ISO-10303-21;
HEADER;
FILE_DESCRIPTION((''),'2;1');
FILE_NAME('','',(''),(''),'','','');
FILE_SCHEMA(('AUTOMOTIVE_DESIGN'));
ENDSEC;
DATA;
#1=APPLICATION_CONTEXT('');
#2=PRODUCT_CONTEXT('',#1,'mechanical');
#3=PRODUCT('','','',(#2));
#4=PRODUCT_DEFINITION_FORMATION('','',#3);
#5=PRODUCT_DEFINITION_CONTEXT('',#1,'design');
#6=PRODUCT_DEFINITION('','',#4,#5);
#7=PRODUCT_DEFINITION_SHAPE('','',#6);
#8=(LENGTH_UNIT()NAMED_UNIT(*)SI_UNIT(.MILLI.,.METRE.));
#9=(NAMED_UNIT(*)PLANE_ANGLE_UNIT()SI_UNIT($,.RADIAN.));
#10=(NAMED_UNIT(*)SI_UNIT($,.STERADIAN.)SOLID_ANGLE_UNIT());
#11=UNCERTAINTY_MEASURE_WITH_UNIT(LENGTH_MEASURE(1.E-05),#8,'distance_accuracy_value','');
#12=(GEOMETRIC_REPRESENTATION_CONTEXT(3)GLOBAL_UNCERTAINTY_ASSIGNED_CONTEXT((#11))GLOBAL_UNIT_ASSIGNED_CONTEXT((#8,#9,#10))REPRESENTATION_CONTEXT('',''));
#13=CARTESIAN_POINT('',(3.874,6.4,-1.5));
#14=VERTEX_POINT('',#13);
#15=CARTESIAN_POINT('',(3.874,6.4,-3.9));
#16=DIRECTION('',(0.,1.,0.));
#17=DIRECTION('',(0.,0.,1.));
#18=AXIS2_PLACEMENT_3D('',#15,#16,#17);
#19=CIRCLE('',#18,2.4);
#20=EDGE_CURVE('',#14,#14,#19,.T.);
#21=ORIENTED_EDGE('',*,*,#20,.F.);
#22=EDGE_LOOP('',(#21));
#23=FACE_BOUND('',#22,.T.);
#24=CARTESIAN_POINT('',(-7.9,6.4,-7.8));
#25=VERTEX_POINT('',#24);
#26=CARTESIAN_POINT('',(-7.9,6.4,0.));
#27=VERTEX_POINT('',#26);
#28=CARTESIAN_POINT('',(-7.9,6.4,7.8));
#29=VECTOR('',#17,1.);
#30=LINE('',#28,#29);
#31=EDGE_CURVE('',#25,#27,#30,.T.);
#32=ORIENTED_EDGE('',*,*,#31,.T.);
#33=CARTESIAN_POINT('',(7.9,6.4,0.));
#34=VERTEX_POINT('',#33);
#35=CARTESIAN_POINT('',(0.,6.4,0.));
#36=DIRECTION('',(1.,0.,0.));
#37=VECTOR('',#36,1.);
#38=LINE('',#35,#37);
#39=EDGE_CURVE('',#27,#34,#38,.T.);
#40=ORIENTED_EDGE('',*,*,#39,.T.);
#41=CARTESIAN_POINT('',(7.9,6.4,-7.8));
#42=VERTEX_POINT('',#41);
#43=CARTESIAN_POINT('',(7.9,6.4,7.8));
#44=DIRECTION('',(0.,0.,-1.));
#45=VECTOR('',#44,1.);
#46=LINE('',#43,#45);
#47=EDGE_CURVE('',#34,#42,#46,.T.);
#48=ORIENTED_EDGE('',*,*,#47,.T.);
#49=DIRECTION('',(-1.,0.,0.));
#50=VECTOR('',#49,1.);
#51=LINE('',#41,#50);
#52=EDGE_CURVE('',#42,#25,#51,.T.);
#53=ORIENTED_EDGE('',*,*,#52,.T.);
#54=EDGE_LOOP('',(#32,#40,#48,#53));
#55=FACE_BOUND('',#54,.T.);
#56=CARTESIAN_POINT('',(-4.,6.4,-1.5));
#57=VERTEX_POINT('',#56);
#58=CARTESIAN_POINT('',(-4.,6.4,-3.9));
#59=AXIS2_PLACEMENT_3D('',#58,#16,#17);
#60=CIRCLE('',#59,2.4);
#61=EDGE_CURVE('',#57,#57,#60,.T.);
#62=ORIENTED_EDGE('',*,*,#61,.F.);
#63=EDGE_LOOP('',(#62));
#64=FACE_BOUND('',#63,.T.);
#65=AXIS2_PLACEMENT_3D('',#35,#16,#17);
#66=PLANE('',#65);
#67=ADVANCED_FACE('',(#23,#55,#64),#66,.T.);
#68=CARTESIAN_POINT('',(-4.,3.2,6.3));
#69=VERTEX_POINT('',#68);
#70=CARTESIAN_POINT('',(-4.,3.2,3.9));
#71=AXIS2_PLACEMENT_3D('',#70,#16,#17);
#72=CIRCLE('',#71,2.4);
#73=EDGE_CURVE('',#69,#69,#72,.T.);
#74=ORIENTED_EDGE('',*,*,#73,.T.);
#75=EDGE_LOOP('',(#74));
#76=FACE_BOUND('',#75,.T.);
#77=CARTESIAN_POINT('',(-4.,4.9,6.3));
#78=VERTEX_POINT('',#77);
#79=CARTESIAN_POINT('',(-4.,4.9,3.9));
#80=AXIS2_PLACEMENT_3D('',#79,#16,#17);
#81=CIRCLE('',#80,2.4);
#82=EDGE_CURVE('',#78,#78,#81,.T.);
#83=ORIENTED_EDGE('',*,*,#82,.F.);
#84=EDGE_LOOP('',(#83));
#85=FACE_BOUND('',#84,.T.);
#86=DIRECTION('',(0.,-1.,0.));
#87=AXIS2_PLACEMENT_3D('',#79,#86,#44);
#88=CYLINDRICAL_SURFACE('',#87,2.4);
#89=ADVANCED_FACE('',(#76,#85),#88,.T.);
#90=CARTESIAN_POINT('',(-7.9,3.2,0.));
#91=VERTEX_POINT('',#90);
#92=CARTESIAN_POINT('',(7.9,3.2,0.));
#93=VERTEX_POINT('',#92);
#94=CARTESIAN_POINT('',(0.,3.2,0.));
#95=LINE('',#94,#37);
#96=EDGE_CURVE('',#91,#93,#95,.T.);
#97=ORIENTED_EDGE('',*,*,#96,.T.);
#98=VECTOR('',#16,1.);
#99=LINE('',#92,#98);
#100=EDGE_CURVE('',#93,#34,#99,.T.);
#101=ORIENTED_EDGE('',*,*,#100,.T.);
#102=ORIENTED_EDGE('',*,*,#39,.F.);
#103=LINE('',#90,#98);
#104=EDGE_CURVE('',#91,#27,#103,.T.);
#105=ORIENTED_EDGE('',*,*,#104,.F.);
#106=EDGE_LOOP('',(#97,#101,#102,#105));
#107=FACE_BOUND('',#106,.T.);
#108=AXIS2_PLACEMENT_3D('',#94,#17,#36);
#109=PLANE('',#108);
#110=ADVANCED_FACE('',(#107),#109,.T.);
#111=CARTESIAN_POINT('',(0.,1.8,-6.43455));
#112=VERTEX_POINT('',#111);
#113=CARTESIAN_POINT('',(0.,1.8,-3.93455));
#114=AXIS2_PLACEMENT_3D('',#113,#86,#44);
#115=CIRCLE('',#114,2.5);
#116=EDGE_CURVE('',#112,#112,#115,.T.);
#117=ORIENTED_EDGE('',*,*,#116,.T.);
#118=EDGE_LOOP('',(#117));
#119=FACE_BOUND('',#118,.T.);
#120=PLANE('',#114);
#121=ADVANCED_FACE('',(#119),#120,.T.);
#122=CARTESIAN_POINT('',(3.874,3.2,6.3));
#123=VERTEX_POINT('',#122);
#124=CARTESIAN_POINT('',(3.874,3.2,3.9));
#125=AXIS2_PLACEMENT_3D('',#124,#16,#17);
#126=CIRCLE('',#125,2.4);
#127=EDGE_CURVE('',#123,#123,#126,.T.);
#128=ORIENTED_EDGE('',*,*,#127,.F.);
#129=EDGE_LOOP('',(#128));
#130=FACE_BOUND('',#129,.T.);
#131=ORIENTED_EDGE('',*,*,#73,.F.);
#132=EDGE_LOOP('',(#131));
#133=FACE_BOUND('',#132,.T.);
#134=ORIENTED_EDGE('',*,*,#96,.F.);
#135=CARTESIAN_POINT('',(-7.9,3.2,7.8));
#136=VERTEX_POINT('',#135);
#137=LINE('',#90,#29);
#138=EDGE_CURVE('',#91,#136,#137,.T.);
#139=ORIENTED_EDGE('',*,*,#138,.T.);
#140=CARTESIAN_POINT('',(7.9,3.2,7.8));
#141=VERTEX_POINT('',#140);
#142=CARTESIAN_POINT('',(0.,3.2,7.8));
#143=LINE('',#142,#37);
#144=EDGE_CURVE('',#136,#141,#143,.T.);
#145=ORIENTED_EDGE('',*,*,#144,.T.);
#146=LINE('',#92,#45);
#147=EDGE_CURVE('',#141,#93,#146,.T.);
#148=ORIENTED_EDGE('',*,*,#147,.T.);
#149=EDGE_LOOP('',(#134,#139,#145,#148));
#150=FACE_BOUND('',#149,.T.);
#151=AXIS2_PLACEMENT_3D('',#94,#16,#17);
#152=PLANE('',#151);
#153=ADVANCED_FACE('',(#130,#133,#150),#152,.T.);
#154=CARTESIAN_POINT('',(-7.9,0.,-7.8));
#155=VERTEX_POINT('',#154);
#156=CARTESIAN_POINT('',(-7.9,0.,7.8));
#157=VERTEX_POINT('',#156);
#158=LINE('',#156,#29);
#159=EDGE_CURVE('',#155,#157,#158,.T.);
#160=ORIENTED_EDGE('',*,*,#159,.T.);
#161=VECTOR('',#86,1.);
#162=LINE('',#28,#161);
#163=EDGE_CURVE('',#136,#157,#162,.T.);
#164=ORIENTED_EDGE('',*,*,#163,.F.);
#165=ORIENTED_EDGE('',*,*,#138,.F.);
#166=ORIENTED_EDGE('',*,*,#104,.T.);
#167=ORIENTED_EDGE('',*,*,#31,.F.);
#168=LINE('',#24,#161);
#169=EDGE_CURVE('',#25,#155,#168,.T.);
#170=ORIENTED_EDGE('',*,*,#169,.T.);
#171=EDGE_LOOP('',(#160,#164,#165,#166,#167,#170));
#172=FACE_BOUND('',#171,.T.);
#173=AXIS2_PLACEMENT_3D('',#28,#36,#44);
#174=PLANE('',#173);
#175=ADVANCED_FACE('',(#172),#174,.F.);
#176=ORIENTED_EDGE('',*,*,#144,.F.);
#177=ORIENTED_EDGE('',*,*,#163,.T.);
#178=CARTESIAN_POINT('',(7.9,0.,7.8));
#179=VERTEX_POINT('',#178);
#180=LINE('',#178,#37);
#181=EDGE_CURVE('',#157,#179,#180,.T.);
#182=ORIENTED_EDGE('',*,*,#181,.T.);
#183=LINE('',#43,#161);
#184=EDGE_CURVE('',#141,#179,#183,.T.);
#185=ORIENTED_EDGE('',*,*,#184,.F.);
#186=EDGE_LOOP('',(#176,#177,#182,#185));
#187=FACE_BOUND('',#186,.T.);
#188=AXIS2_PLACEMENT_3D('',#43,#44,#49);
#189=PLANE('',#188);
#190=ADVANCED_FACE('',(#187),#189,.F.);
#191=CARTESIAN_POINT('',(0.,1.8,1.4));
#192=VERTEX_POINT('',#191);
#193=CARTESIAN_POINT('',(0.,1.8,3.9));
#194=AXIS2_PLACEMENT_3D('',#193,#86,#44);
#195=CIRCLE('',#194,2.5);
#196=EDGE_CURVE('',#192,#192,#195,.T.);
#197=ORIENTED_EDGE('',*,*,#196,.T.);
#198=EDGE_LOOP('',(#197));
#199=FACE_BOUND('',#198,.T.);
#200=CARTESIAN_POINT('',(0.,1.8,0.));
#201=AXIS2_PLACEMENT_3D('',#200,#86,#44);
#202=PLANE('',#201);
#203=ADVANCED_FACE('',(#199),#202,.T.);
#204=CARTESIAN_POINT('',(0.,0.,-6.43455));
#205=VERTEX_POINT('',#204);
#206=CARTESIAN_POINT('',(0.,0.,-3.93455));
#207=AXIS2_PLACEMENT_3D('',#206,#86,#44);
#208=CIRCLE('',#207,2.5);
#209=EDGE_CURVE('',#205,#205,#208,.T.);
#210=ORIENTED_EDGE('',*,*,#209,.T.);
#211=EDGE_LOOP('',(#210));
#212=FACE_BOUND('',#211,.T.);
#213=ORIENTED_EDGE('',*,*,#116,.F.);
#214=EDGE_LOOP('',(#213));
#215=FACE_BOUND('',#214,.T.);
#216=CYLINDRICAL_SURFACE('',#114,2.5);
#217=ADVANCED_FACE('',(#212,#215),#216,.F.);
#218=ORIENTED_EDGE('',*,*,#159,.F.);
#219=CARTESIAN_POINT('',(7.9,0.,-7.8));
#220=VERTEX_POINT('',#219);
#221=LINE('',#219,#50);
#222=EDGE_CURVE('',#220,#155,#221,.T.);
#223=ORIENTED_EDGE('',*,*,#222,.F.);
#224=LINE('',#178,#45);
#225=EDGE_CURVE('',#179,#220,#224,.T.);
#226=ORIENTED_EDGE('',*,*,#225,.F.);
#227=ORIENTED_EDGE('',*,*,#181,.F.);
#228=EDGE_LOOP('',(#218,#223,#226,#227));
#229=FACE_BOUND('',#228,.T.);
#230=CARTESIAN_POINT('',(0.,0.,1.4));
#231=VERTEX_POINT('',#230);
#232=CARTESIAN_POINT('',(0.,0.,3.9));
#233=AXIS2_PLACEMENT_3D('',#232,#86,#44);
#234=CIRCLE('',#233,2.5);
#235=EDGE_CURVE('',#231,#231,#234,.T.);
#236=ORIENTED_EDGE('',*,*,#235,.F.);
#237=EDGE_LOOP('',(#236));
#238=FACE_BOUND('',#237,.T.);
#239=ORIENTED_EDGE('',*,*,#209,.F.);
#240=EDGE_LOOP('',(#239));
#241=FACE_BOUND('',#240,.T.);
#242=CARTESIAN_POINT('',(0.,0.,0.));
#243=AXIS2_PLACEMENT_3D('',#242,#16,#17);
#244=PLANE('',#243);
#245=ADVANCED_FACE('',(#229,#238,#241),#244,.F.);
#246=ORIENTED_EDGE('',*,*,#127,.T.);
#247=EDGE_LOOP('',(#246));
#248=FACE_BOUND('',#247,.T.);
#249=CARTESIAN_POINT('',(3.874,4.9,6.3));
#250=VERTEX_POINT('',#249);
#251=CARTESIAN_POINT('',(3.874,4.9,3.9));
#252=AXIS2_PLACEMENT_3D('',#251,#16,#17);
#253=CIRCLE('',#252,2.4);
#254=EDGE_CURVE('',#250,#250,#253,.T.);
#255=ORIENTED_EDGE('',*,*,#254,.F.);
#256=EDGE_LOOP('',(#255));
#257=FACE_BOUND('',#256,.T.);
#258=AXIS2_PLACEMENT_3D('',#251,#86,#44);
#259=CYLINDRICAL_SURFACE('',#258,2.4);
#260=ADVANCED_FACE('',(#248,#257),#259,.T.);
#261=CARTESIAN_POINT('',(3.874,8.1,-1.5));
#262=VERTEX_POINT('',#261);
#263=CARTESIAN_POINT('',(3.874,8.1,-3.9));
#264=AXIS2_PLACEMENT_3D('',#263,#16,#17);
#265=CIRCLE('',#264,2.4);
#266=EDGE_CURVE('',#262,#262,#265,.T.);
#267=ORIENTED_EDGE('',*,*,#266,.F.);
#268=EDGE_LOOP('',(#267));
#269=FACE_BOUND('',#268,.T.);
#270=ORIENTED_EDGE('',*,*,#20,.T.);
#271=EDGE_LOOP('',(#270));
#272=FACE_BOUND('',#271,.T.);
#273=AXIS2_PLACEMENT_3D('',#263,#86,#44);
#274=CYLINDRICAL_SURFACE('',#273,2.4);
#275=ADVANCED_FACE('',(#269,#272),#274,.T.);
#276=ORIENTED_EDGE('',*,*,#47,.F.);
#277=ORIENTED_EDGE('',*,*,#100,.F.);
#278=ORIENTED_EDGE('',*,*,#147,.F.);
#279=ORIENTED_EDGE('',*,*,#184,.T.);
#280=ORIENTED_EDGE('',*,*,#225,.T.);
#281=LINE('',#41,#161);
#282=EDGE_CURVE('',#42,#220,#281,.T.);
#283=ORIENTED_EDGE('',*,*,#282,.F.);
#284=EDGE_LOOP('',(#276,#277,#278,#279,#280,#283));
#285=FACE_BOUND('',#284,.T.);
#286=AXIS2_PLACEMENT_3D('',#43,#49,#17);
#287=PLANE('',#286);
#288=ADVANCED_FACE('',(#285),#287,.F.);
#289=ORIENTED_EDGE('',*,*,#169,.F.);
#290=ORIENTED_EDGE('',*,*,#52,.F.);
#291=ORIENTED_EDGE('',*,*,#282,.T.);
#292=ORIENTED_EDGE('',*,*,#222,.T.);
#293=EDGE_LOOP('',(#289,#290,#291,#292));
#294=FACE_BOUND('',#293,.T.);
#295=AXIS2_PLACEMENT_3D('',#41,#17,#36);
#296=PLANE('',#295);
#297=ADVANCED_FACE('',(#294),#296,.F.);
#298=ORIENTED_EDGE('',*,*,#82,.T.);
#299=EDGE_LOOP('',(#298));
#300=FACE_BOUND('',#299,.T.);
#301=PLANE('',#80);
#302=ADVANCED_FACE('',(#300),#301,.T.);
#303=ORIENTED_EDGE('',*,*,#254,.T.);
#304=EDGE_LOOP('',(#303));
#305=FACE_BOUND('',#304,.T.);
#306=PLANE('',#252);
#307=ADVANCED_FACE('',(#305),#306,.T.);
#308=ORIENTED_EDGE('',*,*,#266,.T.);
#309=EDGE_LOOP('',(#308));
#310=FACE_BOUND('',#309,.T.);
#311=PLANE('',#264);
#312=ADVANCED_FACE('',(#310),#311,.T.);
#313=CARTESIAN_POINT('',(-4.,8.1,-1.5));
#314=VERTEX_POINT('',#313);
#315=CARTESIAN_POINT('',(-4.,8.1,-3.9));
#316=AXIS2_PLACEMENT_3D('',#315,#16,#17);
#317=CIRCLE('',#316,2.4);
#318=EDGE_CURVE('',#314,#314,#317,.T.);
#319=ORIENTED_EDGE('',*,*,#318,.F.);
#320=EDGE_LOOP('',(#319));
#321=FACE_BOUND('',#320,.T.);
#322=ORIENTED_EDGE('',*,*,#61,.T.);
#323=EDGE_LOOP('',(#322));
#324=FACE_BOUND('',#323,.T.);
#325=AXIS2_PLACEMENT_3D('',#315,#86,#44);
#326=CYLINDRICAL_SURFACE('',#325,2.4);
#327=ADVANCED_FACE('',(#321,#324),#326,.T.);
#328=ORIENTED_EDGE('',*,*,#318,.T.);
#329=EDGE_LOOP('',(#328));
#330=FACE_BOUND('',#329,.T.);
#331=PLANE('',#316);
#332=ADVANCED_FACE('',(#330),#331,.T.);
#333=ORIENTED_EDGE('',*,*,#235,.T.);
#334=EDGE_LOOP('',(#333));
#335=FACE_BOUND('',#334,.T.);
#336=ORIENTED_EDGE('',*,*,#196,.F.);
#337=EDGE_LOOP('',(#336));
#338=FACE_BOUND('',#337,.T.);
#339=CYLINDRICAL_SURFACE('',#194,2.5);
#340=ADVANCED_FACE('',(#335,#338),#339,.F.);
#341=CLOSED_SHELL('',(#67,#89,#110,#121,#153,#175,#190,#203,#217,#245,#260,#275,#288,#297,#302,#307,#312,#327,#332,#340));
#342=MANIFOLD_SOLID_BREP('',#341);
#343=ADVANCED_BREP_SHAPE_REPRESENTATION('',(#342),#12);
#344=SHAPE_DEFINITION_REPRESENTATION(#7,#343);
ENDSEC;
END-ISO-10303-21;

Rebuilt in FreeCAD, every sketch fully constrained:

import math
import FreeCAD as App
import Part
import Sketcher


def add_polygon(sketch, points):
    """Adds a closed chain of lines whose ends are joined by coincident constraints."""
    first, n = sketch.GeometryCount, len(points)
    for a, b in zip(points, points[1:] + points[:1]):
        sketch.addGeometry(Part.LineSegment(App.Vector(*a, 0), App.Vector(*b, 0)), False)
    for i in range(n):
        sketch.addConstraint(Sketcher.Constraint("Coincident", first + i, 2, first + (i + 1) % n, 1))

doc = App.newDocument("Part")
body = doc.addObject("PartDesign::Body", "Body")

# Sketch on XZ plane
sketch1 = body.newObject("Sketcher::SketchObject", "Sketch")
sketch1.AttachmentSupport = (doc.getObject("XZ_Plane"), [""])
sketch1.MapMode = "FlatFace"
add_polygon(sketch1, [(-7.9, -7.8), (-7.9, 7.8), (7.9, 7.8), (7.9, -7.8)])  # lines 0-3
sketch1.addConstraint(Sketcher.Constraint("Vertical", 0))
sketch1.addConstraint(Sketcher.Constraint("Horizontal", 1))
sketch1.addConstraint(Sketcher.Constraint("Vertical", 2))
sketch1.addConstraint(Sketcher.Constraint("Horizontal", 3))
sketch1.addConstraint(Sketcher.Constraint("Symmetric", 0, 2, 2, 2, -1, 1))
sketch1.addConstraint(Sketcher.Constraint("DistanceX", 1, 1, 1, 2, 15.8))
sketch1.addConstraint(Sketcher.Constraint("DistanceY", 0, 1, 0, 2, 15.6))
pad1 = body.newObject("PartDesign::Pad", "Pad")
pad1.Profile = sketch1
pad1.Length = 6.4
pad1.Reversed = True

# Sketch on XZ plane
sketch2 = body.newObject("Sketcher::SketchObject", "Sketch001")
sketch2.AttachmentSupport = (doc.getObject("XZ_Plane"), [""])
sketch2.MapMode = "FlatFace"
sketch2.AttachmentOffset = App.Placement(App.Vector(0, 0, -6.4), App.Rotation())
add_polygon(sketch2, [(7.9, 0), (-7.9, 0), (-7.9, 7.8), (7.9, 7.8)])  # lines 0-3
sketch2.addConstraint(Sketcher.Constraint("Horizontal", 0))
sketch2.addConstraint(Sketcher.Constraint("Vertical", 1))
sketch2.addConstraint(Sketcher.Constraint("Horizontal", 2))
sketch2.addConstraint(Sketcher.Constraint("Vertical", 3))
sketch2.addConstraint(Sketcher.Constraint("Symmetric", 0, 2, 3, 2, -1, 1))
sketch2.addConstraint(Sketcher.Constraint("DistanceX", 0, 2, 0, 1, 15.8))
sketch2.addConstraint(Sketcher.Constraint("DistanceY", 1, 1, 1, 2, 7.8))
pocket1 = body.newObject("PartDesign::Pocket", "Pocket")
pocket1.Profile = sketch2
pocket1.Length = 3.2
pocket1.Reversed = True

# Sketch on XZ plane
sketch3 = body.newObject("Sketcher::SketchObject", "Sketch002")
sketch3.AttachmentSupport = (doc.getObject("XZ_Plane"), [""])
sketch3.MapMode = "FlatFace"
sketch3.AttachmentOffset = App.Placement(App.Vector(0, 0, -3.2), App.Rotation())
sketch3.addGeometry(Part.Circle(App.Vector(-4, 3.9, 0), App.Vector(0, 0, 1), 2.4), False)
sketch3.addGeometry(Part.Circle(App.Vector(3.874, 3.9, 0), App.Vector(0, 0, 1), 2.4), False)
sketch3.addConstraint(Sketcher.Constraint("Equal", 0, 1))
sketch3.addConstraint(Sketcher.Constraint("Horizontal", 0, 3, 1, 3))
sketch3.addConstraint(Sketcher.Constraint("Diameter", 0, 4.8))
sketch3.addConstraint(Sketcher.Constraint("DistanceX", 0, 3, -1, 1, 4.0))
sketch3.addConstraint(Sketcher.Constraint("DistanceY", -1, 1, 0, 3, 3.9))
sketch3.addConstraint(Sketcher.Constraint("DistanceX", -1, 1, 1, 3, 3.874))
pad2 = body.newObject("PartDesign::Pad", "Pad001")
pad2.Profile = sketch3
pad2.Length = 1.7
pad2.Reversed = True

# Sketch on XZ plane
sketch4 = body.newObject("Sketcher::SketchObject", "Sketch003")
sketch4.AttachmentSupport = (doc.getObject("XZ_Plane"), [""])
sketch4.MapMode = "FlatFace"
sketch4.AttachmentOffset = App.Placement(App.Vector(0, 0, -6.4), App.Rotation())
sketch4.addGeometry(Part.Circle(App.Vector(-4, -3.9, 0), App.Vector(0, 0, 1), 2.4), False)
sketch4.addGeometry(Part.Circle(App.Vector(3.874, -3.9, 0), App.Vector(0, 0, 1), 2.4), False)
sketch4.addConstraint(Sketcher.Constraint("Equal", 0, 1))
sketch4.addConstraint(Sketcher.Constraint("Horizontal", 0, 3, 1, 3))
sketch4.addConstraint(Sketcher.Constraint("Diameter", 0, 4.8))
sketch4.addConstraint(Sketcher.Constraint("DistanceX", 0, 3, -1, 1, 4.0))
sketch4.addConstraint(Sketcher.Constraint("DistanceY", 0, 3, -1, 1, 3.9))
sketch4.addConstraint(Sketcher.Constraint("DistanceX", -1, 1, 1, 3, 3.874))
pad3 = body.newObject("PartDesign::Pad", "Pad002")
pad3.Profile = sketch4
pad3.Length = 1.7
pad3.Reversed = True

# Sketch on XZ plane
sketch5 = body.newObject("Sketcher::SketchObject", "Sketch004")
sketch5.AttachmentSupport = (doc.getObject("XZ_Plane"), [""])
sketch5.MapMode = "FlatFace"
sketch5.addGeometry(Part.ArcOfCircle(Part.Circle(App.Vector(0, 3.9, 0), App.Vector(0, 0, 1), 2.5), math.radians(26.274212), math.radians(153.725788)), False)
sketch5.addGeometry(Part.ArcOfCircle(Part.Circle(App.Vector(0, 3.9, 0), App.Vector(0, 0, 1), 2.5), math.radians(153.725788), math.radians(206.274212)), False)
sketch5.addGeometry(Part.ArcOfCircle(Part.Circle(App.Vector(0, 3.9, 0), App.Vector(0, 0, 1), 2.5), math.radians(-153.725788), math.radians(-26.274212)), False)
sketch5.addGeometry(Part.ArcOfCircle(Part.Circle(App.Vector(0, 3.9, 0), App.Vector(0, 0, 1), 2.5), math.radians(-26.274212), math.radians(0)), False)
sketch5.addGeometry(Part.ArcOfCircle(Part.Circle(App.Vector(0, 3.9, 0), App.Vector(0, 0, 1), 2.5), math.radians(0), math.radians(26.274212)), False)
sketch5.addConstraint(Sketcher.Constraint("Tangent", 0, 2, 1, 1))
sketch5.addConstraint(Sketcher.Constraint("Tangent", 1, 2, 2, 1))
sketch5.addConstraint(Sketcher.Constraint("Tangent", 2, 2, 3, 1))
sketch5.addConstraint(Sketcher.Constraint("Tangent", 3, 2, 4, 1))
sketch5.addConstraint(Sketcher.Constraint("Tangent", 4, 2, 0, 1))
sketch5.addConstraint(Sketcher.Constraint("Coincident", 2, 3, 0, 3))
sketch5.addConstraint(Sketcher.Constraint("Symmetric", 1, 2, 2, 2, -2))
sketch5.addConstraint(Sketcher.Constraint("Horizontal", 4, 3, 3, 2))
sketch5.addConstraint(Sketcher.Constraint("Horizontal", 0, 2, 4, 2))
sketch5.addConstraint(Sketcher.Constraint("Vertical", 0, 2, 1, 2))
sketch5.addConstraint(Sketcher.Constraint("Radius", 0, 2.5))
sketch5.addConstraint(Sketcher.Constraint("DistanceY", -1, 1, 0, 3, 3.9))
sketch5.addConstraint(Sketcher.Constraint("DistanceY", -1, 1, 0, 2, 5.006669))
pocket2 = body.newObject("PartDesign::Pocket", "Pocket001")
pocket2.Profile = sketch5
pocket2.Length = 1.8

# Sketch on XZ plane
sketch6 = body.newObject("Sketcher::SketchObject", "Sketch005")
sketch6.AttachmentSupport = (doc.getObject("XZ_Plane"), [""])
sketch6.MapMode = "FlatFace"
sketch6.addGeometry(Part.Circle(App.Vector(0, -3.93455, 0), App.Vector(0, 0, 1), 2.5), False)
sketch6.addConstraint(Sketcher.Constraint("PointOnObject", 0, 3, -2))
sketch6.addConstraint(Sketcher.Constraint("Diameter", 0, 5.0))
sketch6.addConstraint(Sketcher.Constraint("DistanceY", 0, 3, -1, 1, 3.93455))
pocket3 = body.newObject("PartDesign::Pocket", "Pocket002")
pocket3.Profile = sketch6
pocket3.Length = 1.8

doc.recompute()
